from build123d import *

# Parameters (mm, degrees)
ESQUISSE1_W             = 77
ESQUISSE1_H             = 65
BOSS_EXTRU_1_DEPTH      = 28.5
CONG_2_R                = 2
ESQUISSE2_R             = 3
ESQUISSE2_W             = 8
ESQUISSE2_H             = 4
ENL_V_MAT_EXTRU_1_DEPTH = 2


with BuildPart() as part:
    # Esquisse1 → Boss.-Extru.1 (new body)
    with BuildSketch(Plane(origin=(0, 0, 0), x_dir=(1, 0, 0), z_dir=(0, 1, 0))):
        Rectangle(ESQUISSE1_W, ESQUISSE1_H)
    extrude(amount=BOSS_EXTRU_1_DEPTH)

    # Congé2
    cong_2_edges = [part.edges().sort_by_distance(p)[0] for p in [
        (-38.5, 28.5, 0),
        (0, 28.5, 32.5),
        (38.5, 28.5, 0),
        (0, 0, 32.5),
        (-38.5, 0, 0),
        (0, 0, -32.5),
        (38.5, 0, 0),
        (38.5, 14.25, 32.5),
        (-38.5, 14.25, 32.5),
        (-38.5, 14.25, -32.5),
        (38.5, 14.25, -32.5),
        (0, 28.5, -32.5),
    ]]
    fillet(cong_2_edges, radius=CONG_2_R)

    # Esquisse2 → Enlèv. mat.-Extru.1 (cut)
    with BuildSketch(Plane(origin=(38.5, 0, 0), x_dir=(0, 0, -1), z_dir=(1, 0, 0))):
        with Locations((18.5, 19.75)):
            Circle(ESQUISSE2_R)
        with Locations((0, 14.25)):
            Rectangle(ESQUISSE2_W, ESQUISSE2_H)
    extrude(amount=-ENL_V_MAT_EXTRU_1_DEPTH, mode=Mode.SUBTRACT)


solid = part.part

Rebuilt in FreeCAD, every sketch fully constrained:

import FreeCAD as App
import Part
import Sketcher
from FreeCAD import Vector

doc = App.newDocument("Part")
body = doc.addObject("PartDesign::Body", "Body")

sketch1 = body.newObject("Sketcher::SketchObject", "Sketch")
sketch1.AttachmentSupport = (doc.getObject("XZ_Plane"), [""])
sketch1.MapMode = "FlatFace"
sketch1.addGeometry([
    Part.LineSegment(Vector(-38.5, -32.5, 0), Vector(-38.5, 32.5, 0)),
    Part.LineSegment(Vector(-38.5, 32.5, 0), Vector(38.5, 32.5, 0)),
    Part.LineSegment(Vector(38.5, 32.5, 0), Vector(38.5, -32.5, 0)),
    Part.LineSegment(Vector(38.5, -32.5, 0), Vector(-38.5, -32.5, 0)),
], False)
sketch1.addConstraint([
    Sketcher.Constraint("Coincident", 0, 2, 1, 1),
    Sketcher.Constraint("Coincident", 1, 2, 2, 1),
    Sketcher.Constraint("Coincident", 2, 2, 3, 1),
    Sketcher.Constraint("Coincident", 3, 2, 0, 1),
    Sketcher.Constraint("Vertical", 0),
    Sketcher.Constraint("Horizontal", 1),
    Sketcher.Constraint("Vertical", 2),
    Sketcher.Constraint("Horizontal", 3),
    Sketcher.Constraint("Symmetric", 0, 2, 2, 2, -1, 1),
    Sketcher.Constraint("DistanceX", 1, 1, 1, 2, 77.0),
    Sketcher.Constraint("DistanceY", 0, 1, 0, 2, 65.0),
])
pad1 = body.newObject("PartDesign::Pad", "Pad")
pad1.Profile = sketch1
pad1.Length = 28.5
pad1.Reversed = True
doc.recompute()

fillet = body.newObject("PartDesign::Fillet", "Fillet")
fillet.Base = (pad1, ["Edge1"])
fillet.UseAllEdges = True
fillet.Radius = 2

sketch2 = body.newObject("Sketcher::SketchObject", "Sketch001")
sketch2.AttachmentSupport = (doc.getObject("YZ_Plane"), [""])
sketch2.MapMode = "FlatFace"
sketch2.AttachmentOffset = App.Placement(Vector(0, 0, 38.5), App.Rotation())
sketch2.addGeometry([
    Part.Circle(Vector(19.75, -18.5, 0), Vector(0, 0, 1), 3),
    Part.LineSegment(Vector(16.25, 4, 0), Vector(12.25, 4, 0)),
    Part.LineSegment(Vector(12.25, 4, 0), Vector(12.25, -4, 0)),
    Part.LineSegment(Vector(12.25, -4, 0), Vector(16.25, -4, 0)),
    Part.LineSegment(Vector(16.25, -4, 0), Vector(16.25, 4, 0)),
], False)
sketch2.addConstraint([
    Sketcher.Constraint("Coincident", 1, 2, 2, 1),
    Sketcher.Constraint("Coincident", 2, 2, 3, 1),
    Sketcher.Constraint("Coincident", 3, 2, 4, 1),
    Sketcher.Constraint("Coincident", 4, 2, 1, 1),
    Sketcher.Constraint("Horizontal", 1),
    Sketcher.Constraint("Vertical", 2),
    Sketcher.Constraint("Horizontal", 3),
    Sketcher.Constraint("Vertical", 4),
    Sketcher.Constraint("Diameter", 0, 6.0),
    Sketcher.Constraint("DistanceX", 1, 2, 1, 1, 4.0),
    Sketcher.Constraint("DistanceY", 2, 2, 2, 1, 8.0),
    Sketcher.Constraint("DistanceY", -1, 1, 1, 2, 4.0),
    Sketcher.Constraint("DistanceY", 0, 3, -1, 1, 18.5),
    Sketcher.Constraint("DistanceX", 1, 2, 0, 3, 7.5),
    Sketcher.Constraint("DistanceX", -1, 1, 0, 3, 19.75),
])
pocket1 = body.newObject("PartDesign::Pocket", "Pocket")
pocket1.Profile = sketch2
pocket1.Length = 2

doc.recompute()
